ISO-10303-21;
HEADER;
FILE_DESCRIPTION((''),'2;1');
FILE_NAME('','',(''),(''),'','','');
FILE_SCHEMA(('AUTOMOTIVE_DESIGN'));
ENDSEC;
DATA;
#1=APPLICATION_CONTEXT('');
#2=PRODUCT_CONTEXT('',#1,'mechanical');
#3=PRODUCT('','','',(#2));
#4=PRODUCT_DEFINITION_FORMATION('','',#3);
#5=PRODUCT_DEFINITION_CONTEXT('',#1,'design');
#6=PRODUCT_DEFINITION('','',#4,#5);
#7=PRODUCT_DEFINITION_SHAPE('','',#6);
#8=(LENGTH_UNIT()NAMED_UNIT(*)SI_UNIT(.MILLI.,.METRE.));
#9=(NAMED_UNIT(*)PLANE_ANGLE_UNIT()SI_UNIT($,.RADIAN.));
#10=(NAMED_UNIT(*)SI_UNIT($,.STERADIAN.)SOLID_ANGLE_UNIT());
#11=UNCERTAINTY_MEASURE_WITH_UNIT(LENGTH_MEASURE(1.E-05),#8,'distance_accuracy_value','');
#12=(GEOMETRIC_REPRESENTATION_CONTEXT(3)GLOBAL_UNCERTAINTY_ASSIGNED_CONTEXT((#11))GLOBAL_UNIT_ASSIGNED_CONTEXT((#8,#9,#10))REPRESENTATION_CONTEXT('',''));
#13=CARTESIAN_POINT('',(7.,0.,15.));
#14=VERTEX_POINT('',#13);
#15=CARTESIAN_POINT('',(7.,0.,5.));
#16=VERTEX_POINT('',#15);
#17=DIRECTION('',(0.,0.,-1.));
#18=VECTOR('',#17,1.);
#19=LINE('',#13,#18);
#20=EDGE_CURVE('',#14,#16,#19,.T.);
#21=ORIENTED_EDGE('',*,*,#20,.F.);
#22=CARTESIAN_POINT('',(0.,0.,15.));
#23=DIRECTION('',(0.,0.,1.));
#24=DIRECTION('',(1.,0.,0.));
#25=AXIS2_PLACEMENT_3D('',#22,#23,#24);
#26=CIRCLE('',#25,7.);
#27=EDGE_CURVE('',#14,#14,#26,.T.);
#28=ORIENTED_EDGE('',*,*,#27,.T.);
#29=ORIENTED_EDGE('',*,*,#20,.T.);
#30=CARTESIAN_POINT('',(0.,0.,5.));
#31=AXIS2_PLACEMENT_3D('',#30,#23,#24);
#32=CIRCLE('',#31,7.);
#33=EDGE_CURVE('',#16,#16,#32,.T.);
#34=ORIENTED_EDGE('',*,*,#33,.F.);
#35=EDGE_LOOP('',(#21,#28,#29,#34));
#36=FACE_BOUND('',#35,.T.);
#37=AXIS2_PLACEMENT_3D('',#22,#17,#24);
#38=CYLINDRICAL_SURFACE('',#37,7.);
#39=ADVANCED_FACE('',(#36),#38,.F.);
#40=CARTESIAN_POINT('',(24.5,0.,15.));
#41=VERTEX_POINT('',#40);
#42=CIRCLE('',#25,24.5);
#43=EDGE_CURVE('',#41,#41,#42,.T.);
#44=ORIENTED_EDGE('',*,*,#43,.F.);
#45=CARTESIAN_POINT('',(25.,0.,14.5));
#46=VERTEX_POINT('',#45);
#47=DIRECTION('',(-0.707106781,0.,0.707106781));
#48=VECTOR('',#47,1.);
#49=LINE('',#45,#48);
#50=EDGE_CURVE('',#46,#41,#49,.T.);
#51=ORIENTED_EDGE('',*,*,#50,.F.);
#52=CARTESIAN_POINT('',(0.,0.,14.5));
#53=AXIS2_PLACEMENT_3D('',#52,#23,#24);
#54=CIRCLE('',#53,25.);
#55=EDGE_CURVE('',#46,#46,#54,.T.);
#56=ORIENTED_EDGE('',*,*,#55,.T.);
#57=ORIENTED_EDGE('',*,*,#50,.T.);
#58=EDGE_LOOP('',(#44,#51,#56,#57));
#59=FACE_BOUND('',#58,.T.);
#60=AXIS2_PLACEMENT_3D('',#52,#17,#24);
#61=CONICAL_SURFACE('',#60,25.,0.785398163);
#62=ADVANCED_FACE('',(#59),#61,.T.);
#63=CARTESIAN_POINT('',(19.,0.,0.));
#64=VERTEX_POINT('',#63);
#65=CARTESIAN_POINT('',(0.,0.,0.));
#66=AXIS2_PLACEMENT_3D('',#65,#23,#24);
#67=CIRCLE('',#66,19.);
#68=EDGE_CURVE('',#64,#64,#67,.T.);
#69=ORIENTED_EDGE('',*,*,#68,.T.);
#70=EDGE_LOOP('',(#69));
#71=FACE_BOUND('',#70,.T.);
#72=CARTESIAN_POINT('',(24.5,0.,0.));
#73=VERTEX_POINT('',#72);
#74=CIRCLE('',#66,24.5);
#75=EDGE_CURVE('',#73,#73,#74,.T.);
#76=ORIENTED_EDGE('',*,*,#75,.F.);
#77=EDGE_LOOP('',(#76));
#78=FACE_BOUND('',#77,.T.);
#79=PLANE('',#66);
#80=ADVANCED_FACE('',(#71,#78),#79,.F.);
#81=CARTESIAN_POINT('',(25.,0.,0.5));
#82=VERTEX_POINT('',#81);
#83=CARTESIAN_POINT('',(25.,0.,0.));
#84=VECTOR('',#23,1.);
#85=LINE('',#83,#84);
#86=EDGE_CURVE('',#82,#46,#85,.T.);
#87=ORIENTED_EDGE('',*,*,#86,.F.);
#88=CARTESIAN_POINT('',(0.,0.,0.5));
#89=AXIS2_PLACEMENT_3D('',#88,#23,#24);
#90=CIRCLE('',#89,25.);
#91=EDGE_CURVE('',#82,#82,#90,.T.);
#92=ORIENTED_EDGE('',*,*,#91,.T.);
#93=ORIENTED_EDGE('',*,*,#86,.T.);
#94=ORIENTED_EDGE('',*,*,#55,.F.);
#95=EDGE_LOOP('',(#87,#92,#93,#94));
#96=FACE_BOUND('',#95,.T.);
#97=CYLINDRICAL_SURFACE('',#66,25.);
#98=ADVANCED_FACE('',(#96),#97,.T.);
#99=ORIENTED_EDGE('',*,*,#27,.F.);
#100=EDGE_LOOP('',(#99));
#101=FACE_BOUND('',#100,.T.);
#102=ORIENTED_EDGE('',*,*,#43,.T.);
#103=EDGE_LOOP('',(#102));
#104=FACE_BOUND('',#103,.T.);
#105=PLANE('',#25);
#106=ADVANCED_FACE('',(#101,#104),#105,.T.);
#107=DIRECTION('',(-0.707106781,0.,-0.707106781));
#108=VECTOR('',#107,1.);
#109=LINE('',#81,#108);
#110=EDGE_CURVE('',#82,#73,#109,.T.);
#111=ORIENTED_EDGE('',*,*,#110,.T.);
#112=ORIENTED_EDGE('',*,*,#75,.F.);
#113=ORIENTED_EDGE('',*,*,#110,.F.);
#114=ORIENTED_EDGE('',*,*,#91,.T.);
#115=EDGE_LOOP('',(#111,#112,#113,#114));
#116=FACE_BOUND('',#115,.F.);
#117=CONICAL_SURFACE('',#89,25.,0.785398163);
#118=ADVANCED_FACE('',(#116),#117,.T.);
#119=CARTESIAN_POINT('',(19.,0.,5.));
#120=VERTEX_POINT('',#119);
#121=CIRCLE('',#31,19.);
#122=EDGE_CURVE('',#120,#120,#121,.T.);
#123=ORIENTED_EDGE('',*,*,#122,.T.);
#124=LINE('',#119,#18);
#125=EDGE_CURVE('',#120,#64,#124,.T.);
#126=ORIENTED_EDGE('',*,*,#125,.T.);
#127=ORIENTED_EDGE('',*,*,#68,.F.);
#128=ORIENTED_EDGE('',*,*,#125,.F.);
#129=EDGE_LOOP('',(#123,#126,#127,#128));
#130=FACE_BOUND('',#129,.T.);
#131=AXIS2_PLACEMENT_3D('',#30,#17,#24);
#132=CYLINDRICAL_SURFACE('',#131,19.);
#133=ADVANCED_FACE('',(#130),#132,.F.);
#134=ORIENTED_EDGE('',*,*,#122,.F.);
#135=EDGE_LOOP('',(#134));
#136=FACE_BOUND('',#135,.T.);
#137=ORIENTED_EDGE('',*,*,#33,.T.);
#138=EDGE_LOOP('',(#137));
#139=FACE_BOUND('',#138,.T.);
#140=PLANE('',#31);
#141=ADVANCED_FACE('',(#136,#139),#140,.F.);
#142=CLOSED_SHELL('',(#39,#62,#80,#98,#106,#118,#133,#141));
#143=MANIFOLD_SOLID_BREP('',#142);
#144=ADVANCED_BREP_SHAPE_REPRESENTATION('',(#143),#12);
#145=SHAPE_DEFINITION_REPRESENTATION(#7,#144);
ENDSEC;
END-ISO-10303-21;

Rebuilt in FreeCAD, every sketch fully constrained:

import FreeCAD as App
import Part
import Sketcher


def edges_at(feature, points):
    """Names of the edges that pass closest to the given points."""
    edges = feature.Shape.Edges
    near = lambda p: min(range(len(edges)), key=lambda i: edges[i].distToShape(Part.Vertex(*p))[0])
    return sorted({f"Edge{near(p) + 1}" for p in points})


def add_polygon(sketch, points):
    """Adds a closed chain of lines whose ends are joined by coincident constraints."""
    first, n = sketch.GeometryCount, len(points)
    for a, b in zip(points, points[1:] + points[:1]):
        sketch.addGeometry(Part.LineSegment(App.Vector(*a, 0), App.Vector(*b, 0)), False)
    for i in range(n):
        sketch.addConstraint(Sketcher.Constraint("Coincident", first + i, 2, first + (i + 1) % n, 1))

doc = App.newDocument("Part")
body = doc.addObject("PartDesign::Body", "Body")

# Sketch on XZ plane
sketch1 = body.newObject("Sketcher::SketchObject", "Sketch")
sketch1.AttachmentSupport = (doc.getObject("XZ_Plane"), [""])
sketch1.MapMode = "FlatFace"
add_polygon(sketch1, [(19, 5), (19, 0), (25, 0), (25, 15), (7, 15), (7, 5)])  # lines 0-5
sketch1.addConstraint([
    Sketcher.Constraint("Vertical", 0),
    Sketcher.Constraint("Horizontal", 1),
    Sketcher.Constraint("Vertical", 2),
    Sketcher.Constraint("Horizontal", 3),
    Sketcher.Constraint("Vertical", 4),
    Sketcher.Constraint("Horizontal", 5),
    Sketcher.Constraint("PointOnObject", 0, 2, -1),
    Sketcher.Constraint("DistanceX", 1, 1, 1, 2, 6.0),
    Sketcher.Constraint("DistanceX", 3, 2, 3, 1, 18.0),
    Sketcher.Constraint("DistanceY", 0, 2, 0, 1, 5.0),
    Sketcher.Constraint("DistanceY", 2, 1, 2, 2, 15.0),
    Sketcher.Constraint("DistanceX", -1, 1, 0, 2, 19.0),
])
revolution = body.newObject("PartDesign::Revolution", "Revolution")
revolution.Profile = sketch1
revolution.ReferenceAxis = (sketch1, ["V_Axis"])
revolution.Angle = 360
doc.recompute()

chamfer = body.newObject("PartDesign::Chamfer", "Chamfer")
chamfer.Base = (revolution, edges_at(revolution, [(-25, 0, 15)]))
chamfer.Size = 0.5
doc.recompute()

chamfer2 = body.newObject("PartDesign::Chamfer", "Chamfer001")
chamfer2.Base = (chamfer, edges_at(chamfer, [(-25, 0, 0)]))
chamfer2.Size = 0.5

doc.recompute()
